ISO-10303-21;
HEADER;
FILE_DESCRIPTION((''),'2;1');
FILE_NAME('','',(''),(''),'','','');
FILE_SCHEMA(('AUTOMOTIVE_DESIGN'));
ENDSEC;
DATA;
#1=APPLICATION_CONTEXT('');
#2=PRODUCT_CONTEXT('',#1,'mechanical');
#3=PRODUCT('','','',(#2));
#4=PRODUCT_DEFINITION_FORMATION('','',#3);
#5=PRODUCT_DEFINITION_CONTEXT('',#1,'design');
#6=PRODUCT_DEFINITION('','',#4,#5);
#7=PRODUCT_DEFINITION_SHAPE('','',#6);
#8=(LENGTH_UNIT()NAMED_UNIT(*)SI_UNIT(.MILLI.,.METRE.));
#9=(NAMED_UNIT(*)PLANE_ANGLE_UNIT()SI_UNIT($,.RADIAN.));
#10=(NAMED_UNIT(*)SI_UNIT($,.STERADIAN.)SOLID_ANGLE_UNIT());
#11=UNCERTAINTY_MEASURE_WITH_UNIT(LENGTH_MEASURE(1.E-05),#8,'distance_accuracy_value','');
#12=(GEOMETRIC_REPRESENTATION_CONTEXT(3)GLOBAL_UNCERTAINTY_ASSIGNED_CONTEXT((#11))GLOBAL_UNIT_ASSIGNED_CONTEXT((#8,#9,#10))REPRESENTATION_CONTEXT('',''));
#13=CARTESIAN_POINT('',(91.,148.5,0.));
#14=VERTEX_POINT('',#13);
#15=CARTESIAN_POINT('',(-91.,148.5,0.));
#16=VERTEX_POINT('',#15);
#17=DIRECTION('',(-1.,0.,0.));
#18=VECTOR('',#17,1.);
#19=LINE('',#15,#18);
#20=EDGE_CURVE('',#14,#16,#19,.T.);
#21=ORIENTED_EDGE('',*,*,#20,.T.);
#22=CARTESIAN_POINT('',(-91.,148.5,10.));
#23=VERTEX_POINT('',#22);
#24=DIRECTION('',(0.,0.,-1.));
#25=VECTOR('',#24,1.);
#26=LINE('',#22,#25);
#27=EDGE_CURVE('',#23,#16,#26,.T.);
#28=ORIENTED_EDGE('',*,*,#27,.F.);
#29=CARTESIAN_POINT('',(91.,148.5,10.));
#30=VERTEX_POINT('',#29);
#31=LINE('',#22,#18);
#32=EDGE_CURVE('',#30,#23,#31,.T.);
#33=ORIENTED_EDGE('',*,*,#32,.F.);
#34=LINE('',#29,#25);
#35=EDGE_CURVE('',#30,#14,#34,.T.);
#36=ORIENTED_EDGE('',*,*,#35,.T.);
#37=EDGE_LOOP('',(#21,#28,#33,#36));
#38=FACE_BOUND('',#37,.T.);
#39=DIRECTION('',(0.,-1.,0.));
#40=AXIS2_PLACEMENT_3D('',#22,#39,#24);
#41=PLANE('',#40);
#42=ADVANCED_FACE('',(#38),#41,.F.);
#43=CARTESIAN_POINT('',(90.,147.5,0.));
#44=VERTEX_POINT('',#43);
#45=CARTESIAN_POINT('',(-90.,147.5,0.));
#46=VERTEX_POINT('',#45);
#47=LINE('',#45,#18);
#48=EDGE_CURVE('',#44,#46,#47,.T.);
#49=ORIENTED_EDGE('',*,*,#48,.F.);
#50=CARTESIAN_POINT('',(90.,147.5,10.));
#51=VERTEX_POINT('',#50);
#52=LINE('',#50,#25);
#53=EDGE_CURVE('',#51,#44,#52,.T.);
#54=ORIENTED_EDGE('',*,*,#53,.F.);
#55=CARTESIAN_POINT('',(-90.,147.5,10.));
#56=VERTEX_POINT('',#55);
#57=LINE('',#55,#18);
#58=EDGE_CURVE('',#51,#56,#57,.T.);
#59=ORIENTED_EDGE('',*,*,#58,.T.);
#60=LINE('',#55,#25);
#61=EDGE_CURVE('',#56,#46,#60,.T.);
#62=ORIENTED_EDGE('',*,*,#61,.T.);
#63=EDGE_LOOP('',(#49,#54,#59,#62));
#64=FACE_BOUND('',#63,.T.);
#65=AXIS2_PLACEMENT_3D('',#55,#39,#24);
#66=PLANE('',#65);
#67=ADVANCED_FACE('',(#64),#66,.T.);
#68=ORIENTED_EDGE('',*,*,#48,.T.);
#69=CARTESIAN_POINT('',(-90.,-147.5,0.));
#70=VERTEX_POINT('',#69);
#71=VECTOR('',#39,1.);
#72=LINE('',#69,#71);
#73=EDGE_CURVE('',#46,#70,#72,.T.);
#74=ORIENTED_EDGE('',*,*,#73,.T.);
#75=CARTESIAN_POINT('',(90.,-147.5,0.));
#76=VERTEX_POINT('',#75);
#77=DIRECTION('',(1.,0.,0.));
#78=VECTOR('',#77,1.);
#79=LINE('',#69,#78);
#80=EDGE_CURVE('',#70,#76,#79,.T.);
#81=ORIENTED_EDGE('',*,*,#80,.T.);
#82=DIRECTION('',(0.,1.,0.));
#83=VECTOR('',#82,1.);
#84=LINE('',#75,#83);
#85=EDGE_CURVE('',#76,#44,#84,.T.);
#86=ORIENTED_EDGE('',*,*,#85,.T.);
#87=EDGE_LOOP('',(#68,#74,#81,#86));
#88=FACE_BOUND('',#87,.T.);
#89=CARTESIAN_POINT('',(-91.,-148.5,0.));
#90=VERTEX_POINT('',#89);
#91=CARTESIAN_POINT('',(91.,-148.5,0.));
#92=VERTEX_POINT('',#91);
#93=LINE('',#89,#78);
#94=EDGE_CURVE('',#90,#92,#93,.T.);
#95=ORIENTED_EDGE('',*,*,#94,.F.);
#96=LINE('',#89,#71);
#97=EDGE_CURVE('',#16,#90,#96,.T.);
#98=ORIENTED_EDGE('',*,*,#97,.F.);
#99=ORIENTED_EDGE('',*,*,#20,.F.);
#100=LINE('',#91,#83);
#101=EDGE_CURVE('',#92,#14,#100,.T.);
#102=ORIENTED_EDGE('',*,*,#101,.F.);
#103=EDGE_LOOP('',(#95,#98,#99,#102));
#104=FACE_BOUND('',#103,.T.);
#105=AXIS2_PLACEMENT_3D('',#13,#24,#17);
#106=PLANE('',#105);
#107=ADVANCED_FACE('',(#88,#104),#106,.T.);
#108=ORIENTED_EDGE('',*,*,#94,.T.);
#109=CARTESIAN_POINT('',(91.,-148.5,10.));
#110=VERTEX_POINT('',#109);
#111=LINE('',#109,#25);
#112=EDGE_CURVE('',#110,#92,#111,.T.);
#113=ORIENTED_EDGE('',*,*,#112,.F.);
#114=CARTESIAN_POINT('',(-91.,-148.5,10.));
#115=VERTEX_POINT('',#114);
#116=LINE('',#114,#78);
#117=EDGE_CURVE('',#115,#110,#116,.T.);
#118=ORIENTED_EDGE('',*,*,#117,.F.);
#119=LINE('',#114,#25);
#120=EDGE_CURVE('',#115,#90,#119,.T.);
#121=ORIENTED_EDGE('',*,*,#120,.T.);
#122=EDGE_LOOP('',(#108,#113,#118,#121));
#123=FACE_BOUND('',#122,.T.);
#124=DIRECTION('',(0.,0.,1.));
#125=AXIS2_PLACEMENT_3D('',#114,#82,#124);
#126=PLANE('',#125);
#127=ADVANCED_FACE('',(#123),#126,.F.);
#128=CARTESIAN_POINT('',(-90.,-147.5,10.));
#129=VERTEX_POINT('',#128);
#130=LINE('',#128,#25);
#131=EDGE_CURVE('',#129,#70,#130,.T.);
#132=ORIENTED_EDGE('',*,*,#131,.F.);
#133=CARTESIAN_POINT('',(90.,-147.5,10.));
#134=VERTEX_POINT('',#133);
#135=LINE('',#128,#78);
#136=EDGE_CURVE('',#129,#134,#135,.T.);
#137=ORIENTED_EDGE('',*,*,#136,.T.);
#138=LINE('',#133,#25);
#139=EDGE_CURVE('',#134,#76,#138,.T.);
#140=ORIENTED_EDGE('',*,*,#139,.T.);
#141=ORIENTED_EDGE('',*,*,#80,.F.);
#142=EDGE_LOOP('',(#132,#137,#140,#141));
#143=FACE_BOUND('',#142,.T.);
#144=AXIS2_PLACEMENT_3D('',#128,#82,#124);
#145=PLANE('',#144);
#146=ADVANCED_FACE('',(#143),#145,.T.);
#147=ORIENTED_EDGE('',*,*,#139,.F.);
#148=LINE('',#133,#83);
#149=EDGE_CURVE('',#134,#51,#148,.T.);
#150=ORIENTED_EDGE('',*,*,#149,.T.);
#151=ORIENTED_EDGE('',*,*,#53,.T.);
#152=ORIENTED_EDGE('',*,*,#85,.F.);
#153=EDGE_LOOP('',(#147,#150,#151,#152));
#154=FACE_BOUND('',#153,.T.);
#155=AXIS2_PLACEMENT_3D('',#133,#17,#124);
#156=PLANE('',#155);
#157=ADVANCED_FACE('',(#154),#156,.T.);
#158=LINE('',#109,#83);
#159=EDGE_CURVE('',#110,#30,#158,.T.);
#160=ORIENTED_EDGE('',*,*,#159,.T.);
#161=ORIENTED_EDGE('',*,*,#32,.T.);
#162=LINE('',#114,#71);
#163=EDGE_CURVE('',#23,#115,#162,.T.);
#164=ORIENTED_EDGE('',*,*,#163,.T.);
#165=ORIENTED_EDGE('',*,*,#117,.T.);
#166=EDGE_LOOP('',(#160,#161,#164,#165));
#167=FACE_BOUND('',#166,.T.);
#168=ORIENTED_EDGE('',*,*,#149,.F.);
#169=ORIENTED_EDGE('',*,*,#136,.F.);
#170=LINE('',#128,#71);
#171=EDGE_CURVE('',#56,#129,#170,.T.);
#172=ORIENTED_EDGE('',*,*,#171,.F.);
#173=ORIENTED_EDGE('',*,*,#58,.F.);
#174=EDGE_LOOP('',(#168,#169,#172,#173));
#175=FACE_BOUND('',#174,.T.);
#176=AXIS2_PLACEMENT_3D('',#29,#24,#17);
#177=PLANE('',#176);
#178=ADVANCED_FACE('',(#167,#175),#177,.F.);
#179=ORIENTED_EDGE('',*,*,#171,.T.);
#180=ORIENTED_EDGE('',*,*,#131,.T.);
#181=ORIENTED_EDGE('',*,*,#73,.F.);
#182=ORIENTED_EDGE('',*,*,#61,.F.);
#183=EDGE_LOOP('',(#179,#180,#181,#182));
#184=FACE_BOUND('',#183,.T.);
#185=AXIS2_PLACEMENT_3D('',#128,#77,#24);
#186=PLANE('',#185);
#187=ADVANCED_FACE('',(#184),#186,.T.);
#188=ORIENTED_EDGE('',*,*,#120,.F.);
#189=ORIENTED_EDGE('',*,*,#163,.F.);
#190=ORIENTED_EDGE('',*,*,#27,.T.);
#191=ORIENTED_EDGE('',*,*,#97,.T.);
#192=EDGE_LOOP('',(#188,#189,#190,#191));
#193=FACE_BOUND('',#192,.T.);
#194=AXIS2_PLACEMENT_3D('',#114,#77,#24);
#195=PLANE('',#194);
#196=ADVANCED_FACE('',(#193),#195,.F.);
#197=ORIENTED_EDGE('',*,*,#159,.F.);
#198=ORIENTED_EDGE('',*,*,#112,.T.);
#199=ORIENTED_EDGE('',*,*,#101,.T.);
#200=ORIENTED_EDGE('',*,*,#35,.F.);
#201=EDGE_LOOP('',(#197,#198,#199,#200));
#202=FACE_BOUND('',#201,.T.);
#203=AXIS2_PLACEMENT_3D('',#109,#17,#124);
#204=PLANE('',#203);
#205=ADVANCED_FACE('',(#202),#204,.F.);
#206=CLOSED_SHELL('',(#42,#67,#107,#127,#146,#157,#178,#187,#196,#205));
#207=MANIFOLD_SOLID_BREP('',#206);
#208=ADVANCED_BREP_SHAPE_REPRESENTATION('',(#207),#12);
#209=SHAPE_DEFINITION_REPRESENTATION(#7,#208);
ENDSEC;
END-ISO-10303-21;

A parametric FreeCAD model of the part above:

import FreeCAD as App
import Part
import Sketcher
from FreeCAD import Vector

doc = App.newDocument("Part")
body = doc.addObject("PartDesign::Body", "Body")

sketch1 = body.newObject("Sketcher::SketchObject", "Sketch")
sketch1.AttachmentSupport = (doc.getObject("XY_Plane"), [""])
sketch1.MapMode = "FlatFace"
sketch1.addGeometry([
    Part.LineSegment(Vector(-91, 148, 0), Vector(-91, -148, 0)),
    Part.LineSegment(Vector(-91, -148, 0), Vector(91, -148, 0)),
    Part.LineSegment(Vector(91, -148, 0), Vector(91, 148, 0)),
    Part.LineSegment(Vector(91, 148, 0), Vector(-91, 148, 0)),
    Part.LineSegment(Vector(90, -148, 0), Vector(-90, -148, 0)),
    Part.LineSegment(Vector(-90, -148, 0), Vector(-90, 148, 0)),
    Part.LineSegment(Vector(-90, 148, 0), Vector(90, 148, 0)),
    Part.LineSegment(Vector(90, 148, 0), Vector(90, -148, 0)),
], False)
sketch1.addConstraint([
    Sketcher.Constraint("Coincident", 0, 2, 1, 1),
    Sketcher.Constraint("Coincident", 1, 2, 2, 1),
    Sketcher.Constraint("Coincident", 2, 2, 3, 1),
    Sketcher.Constraint("Coincident", 3, 2, 0, 1),
    Sketcher.Constraint("Coincident", 4, 2, 5, 1),
    Sketcher.Constraint("Coincident", 5, 2, 6, 1),
    Sketcher.Constraint("Coincident", 6, 2, 7, 1),
    Sketcher.Constraint("Coincident", 7, 2, 4, 1),
    Sketcher.Constraint("Vertical", 0),
    Sketcher.Constraint("Horizontal", 1),
    Sketcher.Constraint("Vertical", 2),
    Sketcher.Constraint("Horizontal", 3),
    Sketcher.Constraint("Horizontal", 4),
    Sketcher.Constraint("Vertical", 5),
    Sketcher.Constraint("Horizontal", 6),
    Sketcher.Constraint("Vertical", 7),
    Sketcher.Constraint("Symmetric", 0, 2, 2, 2, -1, 1),
    Sketcher.Constraint("Symmetric", 4, 2, 6, 2, -1, 1),
    Sketcher.Constraint("DistanceX", 1, 1, 1, 2, 182.0),
    Sketcher.Constraint("DistanceX", 4, 2, 4, 1, 180.0),
    Sketcher.Constraint("DistanceY", 0, 2, 0, 1, 297.0),
    Sketcher.Constraint("DistanceY", 5, 1, 5, 2, 295.0),
])
pad1 = body.newObject("PartDesign::Pad", "Pad")
pad1.Profile = sketch1
pad1.Length = 10

doc.recompute()
